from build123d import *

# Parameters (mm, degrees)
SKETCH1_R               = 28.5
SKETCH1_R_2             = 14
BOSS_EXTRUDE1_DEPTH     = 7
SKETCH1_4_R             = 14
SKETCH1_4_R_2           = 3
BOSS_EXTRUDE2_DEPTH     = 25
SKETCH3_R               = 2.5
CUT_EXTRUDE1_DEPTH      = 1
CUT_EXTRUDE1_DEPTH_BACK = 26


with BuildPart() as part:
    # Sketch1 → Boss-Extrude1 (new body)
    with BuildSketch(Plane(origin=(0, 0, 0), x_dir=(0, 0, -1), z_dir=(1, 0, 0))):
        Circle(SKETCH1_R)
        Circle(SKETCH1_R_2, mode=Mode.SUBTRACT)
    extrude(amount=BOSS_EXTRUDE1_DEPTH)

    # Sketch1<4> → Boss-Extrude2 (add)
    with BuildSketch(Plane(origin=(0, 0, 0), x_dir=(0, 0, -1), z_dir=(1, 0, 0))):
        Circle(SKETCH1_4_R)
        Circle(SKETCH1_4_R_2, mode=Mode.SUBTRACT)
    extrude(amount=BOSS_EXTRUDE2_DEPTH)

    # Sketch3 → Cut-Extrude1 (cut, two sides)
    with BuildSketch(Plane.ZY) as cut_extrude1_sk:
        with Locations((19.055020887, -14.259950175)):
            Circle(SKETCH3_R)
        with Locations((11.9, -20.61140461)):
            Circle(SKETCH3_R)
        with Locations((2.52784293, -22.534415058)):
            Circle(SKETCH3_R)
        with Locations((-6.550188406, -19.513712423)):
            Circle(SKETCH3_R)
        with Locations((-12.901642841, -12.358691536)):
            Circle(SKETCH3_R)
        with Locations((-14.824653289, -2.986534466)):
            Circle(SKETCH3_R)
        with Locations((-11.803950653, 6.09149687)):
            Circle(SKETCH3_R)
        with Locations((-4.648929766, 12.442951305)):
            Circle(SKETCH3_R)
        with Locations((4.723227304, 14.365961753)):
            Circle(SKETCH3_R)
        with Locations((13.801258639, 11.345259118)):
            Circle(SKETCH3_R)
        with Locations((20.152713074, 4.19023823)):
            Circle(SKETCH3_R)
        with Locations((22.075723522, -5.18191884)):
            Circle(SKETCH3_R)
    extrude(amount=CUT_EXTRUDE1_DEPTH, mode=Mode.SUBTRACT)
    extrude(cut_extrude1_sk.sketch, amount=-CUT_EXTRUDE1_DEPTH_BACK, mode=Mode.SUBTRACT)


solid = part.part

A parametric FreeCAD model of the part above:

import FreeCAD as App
import Part
import Sketcher
from FreeCAD import Vector

doc = App.newDocument("Part")
body = doc.addObject("PartDesign::Body", "Body")

# Sketch on YZ plane
sketch1 = body.newObject("Sketcher::SketchObject", "Sketch")
sketch1.AttachmentSupport = (doc.getObject("YZ_Plane"), [""])
sketch1.MapMode = "FlatFace"
sketch1.addGeometry([
    Part.Circle(Vector(0, 0, 0), Vector(0, 0, 1), 28.5),
    Part.Circle(Vector(0, 0, 0), Vector(0, 0, 1), 14),
], False)
sketch1.addConstraint([
    Sketcher.Constraint("Coincident", 0, 3, -1, 1),
    Sketcher.Constraint("Coincident", 1, 3, -1, 1),
    Sketcher.Constraint("Diameter", 0, 57.0),
    Sketcher.Constraint("Diameter", 1, 28.0),
])
pad1 = body.newObject("PartDesign::Pad", "Pad")
pad1.Profile = sketch1
pad1.Length = 7

# Sketch on YZ plane
sketch2 = body.newObject("Sketcher::SketchObject", "Sketch001")
sketch2.AttachmentSupport = (doc.getObject("YZ_Plane"), [""])
sketch2.MapMode = "FlatFace"
sketch2.addGeometry([
    Part.Circle(Vector(0, 0, 0), Vector(0, 0, 1), 14),
    Part.Circle(Vector(0, 0, 0), Vector(0, 0, 1), 3),
], False)
sketch2.addConstraint([
    Sketcher.Constraint("Coincident", 0, 3, -1, 1),
    Sketcher.Constraint("Coincident", 1, 3, -1, 1),
    Sketcher.Constraint("Diameter", 0, 28.0),
    Sketcher.Constraint("Diameter", 1, 6.0),
])
pad2 = body.newObject("PartDesign::Pad", "Pad001")
pad2.Profile = sketch2
pad2.Length = 25

# Sketch on YZ plane
sketch3 = body.newObject("Sketcher::SketchObject", "Sketch002")
sketch3.AttachmentSupport = (doc.getObject("YZ_Plane"), [""])
sketch3.MapMode = "FlatFace"
sketch3.addGeometry([
    Part.Circle(Vector(-14.25995, 19.055021, 0), Vector(0, 0, 1), 2.5),  # 0
    Part.Circle(Vector(-20.611405, 11.9, 0), Vector(0, 0, 1), 2.5),  # 1
    Part.Circle(Vector(-22.534415, 2.527843, 0), Vector(0, 0, 1), 2.5),  # 2
    Part.Circle(Vector(-19.513712, -6.550188, 0), Vector(0, 0, 1), 2.5),  # 3
    Part.Circle(Vector(-12.358692, -12.901643, 0), Vector(0, 0, 1), 2.5),  # 4
    Part.Circle(Vector(-2.986534, -14.824653, 0), Vector(0, 0, 1), 2.5),  # 5
    Part.Circle(Vector(6.091497, -11.803951, 0), Vector(0, 0, 1), 2.5),  # 6
    Part.Circle(Vector(12.442951, -4.64893, 0), Vector(0, 0, 1), 2.5),  # 7
    Part.Circle(Vector(14.365962, 4.723227, 0), Vector(0, 0, 1), 2.5),  # 8
    Part.Circle(Vector(11.345259, 13.801259, 0), Vector(0, 0, 1), 2.5),  # 9
    Part.Circle(Vector(4.190238, 20.152713, 0), Vector(0, 0, 1), 2.5),  # 10
    Part.Circle(Vector(-5.181919, 22.075724, 0), Vector(0, 0, 1), 2.5),  # 11
], False)
sketch3.addConstraint([
    Sketcher.Constraint("Equal", 0, 1),
    Sketcher.Constraint("Equal", 1, 2),
    Sketcher.Constraint("Equal", 2, 3),
    Sketcher.Constraint("Equal", 3, 4),
    Sketcher.Constraint("Equal", 4, 5),
    Sketcher.Constraint("Equal", 5, 6),
    Sketcher.Constraint("Equal", 6, 7),
    Sketcher.Constraint("Equal", 7, 8),
    Sketcher.Constraint("Equal", 8, 9),
    Sketcher.Constraint("Equal", 9, 10),
    Sketcher.Constraint("Equal", 10, 11),
    Sketcher.Constraint("Diameter", 0, 5.0),
    Sketcher.Constraint("DistanceY", -1, 1, 1, 3, 11.9),
    Sketcher.Constraint("DistanceX", 1, 3, 6, 3, 26.702901),
    Sketcher.Constraint("DistanceX", 0, 3, 7, 3, 26.702901),
    Sketcher.Constraint("DistanceX", 0, 3, -1, 1, 14.25995),
    Sketcher.Constraint("DistanceY", -1, 1, 0, 3, 19.055021),
    Sketcher.Constraint("DistanceY", 3, 3, -1, 1, 6.550188),
    Sketcher.Constraint("DistanceX", 4, 3, -1, 1, 12.358692),
    Sketcher.Constraint("DistanceY", 6, 3, -1, 1, 11.803951),
    Sketcher.Constraint("DistanceY", 7, 3, -1, 1, 4.64893),
    Sketcher.Constraint("DistanceX", -1, 1, 8, 3, 14.365962),
    Sketcher.Constraint("DistanceX", -1, 1, 9, 3, 11.345259),
    Sketcher.Constraint("DistanceY", -1, 1, 9, 3, 13.801259),
    Sketcher.Constraint("DistanceX", -1, 1, 10, 3, 4.190238),
    Sketcher.Constraint("DistanceX", 11, 3, -1, 1, 5.181919),
    Sketcher.Constraint("DistanceX", 2, 3, 1, 3, 1.92301),
    Sketcher.Constraint("DistanceY", 3, 3, 2, 3, 9.078031),
    Sketcher.Constraint("DistanceX", 3, 3, 4, 3, 7.155021),
    Sketcher.Constraint("DistanceY", 5, 3, 4, 3, 1.92301),
    Sketcher.Constraint("DistanceX", 2, 3, 5, 3, 19.547881),
    Sketcher.Constraint("DistanceX", 4, 3, 6, 3, 18.450188),
    Sketcher.Constraint("DistanceY", 5, 3, 8, 3, 19.547881),
    Sketcher.Constraint("DistanceY", 8, 3, 9, 3, 9.078031),
    Sketcher.Constraint("DistanceY", 10, 3, 11, 3, 1.92301),
    Sketcher.Constraint("DistanceY", 2, 3, 11, 3, 19.547881),
])
pocket1 = body.newObject("PartDesign::Pocket", "Pocket")
pocket1.Profile = sketch3
pocket1.Type = "ThroughAll"
pocket1.Midplane = True

doc.recompute()
